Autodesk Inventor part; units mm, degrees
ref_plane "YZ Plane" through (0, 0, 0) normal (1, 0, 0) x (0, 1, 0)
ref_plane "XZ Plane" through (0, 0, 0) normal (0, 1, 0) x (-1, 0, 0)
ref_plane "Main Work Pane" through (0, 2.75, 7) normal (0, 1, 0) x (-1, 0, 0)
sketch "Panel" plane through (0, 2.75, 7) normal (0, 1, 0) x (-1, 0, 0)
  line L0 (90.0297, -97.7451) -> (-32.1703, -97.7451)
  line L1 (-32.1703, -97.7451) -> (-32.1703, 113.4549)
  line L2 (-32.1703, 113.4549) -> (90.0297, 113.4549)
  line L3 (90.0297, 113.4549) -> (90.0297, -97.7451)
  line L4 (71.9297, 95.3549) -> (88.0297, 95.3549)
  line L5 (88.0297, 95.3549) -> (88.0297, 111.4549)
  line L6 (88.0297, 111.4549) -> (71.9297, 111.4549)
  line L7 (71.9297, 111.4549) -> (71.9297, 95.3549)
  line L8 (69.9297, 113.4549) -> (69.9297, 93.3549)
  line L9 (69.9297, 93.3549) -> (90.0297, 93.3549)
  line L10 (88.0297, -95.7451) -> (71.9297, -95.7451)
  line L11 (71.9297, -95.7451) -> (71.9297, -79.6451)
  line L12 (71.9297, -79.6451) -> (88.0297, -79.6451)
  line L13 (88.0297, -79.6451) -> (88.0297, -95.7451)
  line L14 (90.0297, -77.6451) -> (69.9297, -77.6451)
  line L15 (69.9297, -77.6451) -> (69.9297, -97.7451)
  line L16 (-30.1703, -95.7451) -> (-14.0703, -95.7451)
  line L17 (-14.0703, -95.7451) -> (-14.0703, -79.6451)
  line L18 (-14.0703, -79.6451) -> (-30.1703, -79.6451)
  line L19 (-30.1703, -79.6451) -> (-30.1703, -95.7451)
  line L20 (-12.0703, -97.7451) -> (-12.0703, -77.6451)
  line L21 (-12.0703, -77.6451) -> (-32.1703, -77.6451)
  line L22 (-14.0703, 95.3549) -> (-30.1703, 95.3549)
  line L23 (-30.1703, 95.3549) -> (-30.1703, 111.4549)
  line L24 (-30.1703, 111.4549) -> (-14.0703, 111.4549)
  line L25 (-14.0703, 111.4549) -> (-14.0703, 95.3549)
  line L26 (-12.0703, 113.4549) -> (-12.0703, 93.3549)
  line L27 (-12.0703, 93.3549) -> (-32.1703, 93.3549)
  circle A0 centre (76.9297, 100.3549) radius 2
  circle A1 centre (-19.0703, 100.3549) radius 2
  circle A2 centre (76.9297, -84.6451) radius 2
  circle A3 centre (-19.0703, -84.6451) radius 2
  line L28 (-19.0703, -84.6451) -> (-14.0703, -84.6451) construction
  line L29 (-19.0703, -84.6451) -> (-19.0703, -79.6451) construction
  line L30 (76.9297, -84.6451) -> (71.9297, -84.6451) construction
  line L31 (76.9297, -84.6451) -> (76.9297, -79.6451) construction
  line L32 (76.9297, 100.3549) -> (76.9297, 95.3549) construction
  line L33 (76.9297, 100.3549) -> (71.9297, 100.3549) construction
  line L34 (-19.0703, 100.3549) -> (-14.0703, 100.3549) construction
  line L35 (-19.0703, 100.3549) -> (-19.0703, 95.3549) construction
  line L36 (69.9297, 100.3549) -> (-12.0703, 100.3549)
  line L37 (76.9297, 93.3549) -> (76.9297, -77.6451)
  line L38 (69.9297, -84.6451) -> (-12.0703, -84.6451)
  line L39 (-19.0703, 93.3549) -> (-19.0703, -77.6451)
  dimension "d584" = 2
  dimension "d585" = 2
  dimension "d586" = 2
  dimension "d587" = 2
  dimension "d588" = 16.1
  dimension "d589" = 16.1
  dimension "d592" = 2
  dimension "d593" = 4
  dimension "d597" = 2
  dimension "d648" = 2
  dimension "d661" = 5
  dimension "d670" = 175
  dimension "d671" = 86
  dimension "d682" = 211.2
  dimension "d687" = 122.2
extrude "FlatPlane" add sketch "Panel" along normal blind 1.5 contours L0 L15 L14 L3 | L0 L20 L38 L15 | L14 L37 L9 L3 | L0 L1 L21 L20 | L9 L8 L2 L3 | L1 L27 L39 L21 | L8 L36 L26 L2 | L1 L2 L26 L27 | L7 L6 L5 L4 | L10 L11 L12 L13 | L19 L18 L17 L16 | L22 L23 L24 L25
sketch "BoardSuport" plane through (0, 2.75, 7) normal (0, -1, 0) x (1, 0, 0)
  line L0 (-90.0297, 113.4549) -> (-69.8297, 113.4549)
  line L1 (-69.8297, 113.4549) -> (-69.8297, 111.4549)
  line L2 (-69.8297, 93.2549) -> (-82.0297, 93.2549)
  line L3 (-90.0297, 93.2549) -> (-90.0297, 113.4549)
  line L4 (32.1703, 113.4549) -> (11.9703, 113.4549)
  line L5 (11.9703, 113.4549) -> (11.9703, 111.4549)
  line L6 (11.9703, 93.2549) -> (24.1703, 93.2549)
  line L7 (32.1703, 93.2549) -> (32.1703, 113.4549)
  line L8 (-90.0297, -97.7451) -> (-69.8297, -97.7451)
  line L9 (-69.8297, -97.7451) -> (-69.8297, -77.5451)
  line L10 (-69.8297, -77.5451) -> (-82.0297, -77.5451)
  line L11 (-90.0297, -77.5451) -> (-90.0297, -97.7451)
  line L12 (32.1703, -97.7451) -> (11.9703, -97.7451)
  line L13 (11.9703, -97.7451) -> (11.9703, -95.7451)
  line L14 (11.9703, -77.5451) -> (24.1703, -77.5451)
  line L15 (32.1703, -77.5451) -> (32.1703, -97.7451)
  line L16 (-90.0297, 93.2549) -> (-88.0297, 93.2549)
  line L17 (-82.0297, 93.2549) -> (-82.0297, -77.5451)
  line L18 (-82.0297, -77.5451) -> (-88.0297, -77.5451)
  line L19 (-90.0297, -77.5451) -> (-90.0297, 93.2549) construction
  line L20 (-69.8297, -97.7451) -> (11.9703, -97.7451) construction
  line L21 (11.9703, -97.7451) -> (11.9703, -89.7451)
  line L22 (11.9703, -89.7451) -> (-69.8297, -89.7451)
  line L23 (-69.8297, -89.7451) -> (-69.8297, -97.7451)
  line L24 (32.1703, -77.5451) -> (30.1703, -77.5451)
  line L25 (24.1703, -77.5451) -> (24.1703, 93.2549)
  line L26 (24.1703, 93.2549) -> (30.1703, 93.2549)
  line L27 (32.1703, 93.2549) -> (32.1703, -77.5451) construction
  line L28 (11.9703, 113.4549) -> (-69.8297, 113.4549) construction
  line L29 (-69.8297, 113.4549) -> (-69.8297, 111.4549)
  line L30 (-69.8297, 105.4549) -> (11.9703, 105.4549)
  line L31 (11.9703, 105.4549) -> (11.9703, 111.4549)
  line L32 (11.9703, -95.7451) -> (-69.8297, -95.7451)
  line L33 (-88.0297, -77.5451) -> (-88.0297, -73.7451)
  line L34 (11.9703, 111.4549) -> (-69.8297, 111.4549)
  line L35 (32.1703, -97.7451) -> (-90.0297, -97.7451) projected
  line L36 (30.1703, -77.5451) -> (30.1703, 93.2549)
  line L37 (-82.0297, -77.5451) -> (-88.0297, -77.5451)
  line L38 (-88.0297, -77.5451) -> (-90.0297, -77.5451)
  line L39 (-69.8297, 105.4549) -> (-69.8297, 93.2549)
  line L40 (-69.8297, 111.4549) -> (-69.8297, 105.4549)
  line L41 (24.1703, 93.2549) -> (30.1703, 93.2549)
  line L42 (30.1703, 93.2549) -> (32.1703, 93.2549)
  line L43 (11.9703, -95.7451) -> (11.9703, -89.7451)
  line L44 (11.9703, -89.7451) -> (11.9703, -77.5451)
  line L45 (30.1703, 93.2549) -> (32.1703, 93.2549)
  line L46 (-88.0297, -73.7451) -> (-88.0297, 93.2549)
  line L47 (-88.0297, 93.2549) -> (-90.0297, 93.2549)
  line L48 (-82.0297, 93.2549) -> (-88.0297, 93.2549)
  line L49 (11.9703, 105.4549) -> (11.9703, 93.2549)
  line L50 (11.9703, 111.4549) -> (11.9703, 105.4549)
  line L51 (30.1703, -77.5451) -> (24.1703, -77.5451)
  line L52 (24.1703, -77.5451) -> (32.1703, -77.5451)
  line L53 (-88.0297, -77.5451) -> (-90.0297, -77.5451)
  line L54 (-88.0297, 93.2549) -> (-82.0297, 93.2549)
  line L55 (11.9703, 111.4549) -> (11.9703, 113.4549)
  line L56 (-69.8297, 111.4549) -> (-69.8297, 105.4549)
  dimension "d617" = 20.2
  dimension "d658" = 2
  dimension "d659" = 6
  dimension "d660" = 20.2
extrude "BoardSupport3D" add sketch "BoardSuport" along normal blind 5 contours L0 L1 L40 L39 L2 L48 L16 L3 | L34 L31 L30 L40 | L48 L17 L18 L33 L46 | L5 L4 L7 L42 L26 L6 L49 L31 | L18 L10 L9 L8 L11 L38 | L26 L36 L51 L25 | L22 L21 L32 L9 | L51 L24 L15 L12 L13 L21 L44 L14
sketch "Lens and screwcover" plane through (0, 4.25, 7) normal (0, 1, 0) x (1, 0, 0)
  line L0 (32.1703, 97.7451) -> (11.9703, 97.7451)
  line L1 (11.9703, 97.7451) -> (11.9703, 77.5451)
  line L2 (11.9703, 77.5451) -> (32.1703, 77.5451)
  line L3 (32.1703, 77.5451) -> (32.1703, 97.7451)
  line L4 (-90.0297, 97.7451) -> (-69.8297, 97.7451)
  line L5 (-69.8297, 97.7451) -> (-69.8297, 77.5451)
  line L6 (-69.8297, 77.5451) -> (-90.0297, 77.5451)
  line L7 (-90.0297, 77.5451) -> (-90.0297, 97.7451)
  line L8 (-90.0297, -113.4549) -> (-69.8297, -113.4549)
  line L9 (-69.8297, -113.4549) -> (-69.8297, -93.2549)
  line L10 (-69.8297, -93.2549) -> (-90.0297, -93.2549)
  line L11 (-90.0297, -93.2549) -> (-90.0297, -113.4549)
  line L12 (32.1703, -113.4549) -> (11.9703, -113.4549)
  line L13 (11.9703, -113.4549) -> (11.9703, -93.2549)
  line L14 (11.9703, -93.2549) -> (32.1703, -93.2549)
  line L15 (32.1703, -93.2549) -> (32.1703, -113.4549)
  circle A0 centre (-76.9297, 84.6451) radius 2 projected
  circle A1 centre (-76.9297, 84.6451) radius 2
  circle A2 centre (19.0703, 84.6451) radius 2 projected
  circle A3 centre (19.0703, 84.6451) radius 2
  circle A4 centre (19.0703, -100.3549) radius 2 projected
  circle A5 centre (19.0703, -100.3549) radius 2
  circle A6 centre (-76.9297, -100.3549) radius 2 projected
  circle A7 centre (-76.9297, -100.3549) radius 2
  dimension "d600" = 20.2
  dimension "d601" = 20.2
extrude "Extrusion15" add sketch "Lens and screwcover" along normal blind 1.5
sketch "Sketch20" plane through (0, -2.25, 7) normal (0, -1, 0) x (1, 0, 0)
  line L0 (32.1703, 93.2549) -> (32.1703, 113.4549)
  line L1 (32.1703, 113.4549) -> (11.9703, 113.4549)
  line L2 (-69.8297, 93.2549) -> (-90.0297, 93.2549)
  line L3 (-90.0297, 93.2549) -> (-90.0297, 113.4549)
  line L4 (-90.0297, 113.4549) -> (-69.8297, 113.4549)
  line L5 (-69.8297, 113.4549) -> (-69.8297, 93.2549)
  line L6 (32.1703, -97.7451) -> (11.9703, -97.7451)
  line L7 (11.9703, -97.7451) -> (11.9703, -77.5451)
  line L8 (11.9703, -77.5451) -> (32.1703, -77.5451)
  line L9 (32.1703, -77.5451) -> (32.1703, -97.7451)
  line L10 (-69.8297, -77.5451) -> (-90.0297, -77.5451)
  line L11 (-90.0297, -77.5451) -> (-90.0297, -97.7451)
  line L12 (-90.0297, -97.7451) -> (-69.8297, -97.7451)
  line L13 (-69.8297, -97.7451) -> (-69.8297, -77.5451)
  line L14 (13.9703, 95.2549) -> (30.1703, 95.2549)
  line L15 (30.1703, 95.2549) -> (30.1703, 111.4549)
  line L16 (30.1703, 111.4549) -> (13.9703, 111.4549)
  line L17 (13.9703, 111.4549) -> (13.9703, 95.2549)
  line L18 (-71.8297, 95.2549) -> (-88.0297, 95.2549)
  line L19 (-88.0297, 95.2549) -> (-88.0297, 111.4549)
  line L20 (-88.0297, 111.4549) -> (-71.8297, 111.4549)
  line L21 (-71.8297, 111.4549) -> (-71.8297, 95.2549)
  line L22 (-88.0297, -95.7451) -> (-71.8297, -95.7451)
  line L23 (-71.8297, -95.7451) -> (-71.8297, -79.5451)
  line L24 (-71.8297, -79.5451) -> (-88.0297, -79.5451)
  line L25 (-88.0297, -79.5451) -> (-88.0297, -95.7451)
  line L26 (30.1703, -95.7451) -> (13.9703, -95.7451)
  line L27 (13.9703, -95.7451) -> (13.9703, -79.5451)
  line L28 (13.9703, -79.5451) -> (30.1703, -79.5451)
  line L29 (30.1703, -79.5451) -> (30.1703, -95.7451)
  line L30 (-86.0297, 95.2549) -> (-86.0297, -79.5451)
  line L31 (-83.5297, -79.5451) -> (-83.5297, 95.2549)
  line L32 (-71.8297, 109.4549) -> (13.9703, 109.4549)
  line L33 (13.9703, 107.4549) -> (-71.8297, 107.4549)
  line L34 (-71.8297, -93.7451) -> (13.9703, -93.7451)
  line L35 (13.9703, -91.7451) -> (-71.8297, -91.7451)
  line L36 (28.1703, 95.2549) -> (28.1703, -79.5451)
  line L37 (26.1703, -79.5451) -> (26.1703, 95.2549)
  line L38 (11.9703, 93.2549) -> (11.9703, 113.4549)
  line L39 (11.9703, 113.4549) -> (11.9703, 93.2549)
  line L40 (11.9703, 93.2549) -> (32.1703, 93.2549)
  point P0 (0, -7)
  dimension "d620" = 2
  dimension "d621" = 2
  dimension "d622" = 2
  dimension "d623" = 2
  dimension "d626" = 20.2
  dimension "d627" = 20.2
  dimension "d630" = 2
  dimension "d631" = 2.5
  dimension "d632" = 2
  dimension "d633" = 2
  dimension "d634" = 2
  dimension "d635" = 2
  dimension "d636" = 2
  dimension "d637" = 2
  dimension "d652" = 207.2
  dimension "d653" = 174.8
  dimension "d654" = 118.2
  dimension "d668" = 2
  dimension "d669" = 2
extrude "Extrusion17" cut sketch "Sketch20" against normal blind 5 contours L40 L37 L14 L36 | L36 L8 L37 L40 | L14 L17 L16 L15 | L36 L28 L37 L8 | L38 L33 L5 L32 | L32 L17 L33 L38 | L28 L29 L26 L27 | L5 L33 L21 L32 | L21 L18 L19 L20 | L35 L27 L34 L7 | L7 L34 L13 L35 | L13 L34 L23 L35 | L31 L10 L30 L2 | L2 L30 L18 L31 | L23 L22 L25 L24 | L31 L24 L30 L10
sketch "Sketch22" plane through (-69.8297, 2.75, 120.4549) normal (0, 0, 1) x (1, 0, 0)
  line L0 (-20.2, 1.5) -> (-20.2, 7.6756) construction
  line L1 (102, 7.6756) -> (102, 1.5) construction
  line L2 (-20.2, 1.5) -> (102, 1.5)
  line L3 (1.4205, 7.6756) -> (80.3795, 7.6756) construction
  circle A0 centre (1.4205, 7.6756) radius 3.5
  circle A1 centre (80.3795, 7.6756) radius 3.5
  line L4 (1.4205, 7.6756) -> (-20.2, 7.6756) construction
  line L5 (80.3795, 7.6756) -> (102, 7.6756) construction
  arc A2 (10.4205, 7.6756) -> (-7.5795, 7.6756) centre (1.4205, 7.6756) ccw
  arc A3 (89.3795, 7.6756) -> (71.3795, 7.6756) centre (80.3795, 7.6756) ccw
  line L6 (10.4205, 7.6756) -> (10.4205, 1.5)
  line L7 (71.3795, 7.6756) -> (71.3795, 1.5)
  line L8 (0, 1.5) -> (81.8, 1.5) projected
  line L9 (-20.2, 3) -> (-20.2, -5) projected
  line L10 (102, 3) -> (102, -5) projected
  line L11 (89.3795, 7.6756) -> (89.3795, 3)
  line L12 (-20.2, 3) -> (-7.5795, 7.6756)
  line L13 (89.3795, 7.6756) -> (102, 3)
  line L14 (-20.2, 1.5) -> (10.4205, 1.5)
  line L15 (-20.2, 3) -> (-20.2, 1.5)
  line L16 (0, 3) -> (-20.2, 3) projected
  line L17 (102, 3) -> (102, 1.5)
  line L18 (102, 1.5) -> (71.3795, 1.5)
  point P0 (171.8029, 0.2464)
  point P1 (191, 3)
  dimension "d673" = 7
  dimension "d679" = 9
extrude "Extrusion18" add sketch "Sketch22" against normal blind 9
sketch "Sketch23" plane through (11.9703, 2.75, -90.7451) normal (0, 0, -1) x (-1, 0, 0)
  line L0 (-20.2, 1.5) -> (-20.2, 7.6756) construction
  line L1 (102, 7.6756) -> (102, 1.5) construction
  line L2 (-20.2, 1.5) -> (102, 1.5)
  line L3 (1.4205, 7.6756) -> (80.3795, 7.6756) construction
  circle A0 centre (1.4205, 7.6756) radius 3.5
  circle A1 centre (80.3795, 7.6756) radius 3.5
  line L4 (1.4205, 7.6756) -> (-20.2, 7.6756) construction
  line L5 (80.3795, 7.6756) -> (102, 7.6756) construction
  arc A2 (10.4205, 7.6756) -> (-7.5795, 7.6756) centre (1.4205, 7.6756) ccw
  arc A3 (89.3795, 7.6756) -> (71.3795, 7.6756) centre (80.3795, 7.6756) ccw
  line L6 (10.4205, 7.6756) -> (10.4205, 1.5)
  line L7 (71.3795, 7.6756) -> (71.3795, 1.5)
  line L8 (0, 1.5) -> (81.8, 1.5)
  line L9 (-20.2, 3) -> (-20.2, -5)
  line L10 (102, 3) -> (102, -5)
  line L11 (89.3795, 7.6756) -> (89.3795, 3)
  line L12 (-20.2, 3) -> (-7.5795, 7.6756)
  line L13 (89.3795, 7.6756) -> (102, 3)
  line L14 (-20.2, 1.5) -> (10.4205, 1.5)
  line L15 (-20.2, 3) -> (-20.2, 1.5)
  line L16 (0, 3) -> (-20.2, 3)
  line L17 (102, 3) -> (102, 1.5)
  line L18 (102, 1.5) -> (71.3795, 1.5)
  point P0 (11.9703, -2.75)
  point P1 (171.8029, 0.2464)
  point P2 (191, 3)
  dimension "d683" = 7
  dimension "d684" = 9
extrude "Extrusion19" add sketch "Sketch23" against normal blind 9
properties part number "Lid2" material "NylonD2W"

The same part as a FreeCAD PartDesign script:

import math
import FreeCAD as App
import Part
import Sketcher
from FreeCAD import Vector
Q = App.Units.Quantity

doc = App.newDocument("Part")
body = doc.addObject("PartDesign::Body", "Body")

# Sketch on XZ plane
sketch1 = doc.addObject("Sketcher::SketchObject", "Sketch")
body.addObject(sketch1)
sketch1.AttachmentSupport = (doc.XZ_Plane, [""])
sketch1.MapMode = "FlatFace"
sketch1.AttachmentOffset = App.Placement(Vector(0, 0, -2.75), App.Rotation())
sketch1.addGeometry([
    Part.LineSegment(Vector(-90, -90.7, 0), Vector(-90, 120.5, 0)),  # 0
    Part.LineSegment(Vector(-90, 120.5, 0), Vector(32.2, 120.5, 0)),  # 1
    Part.LineSegment(Vector(32.2, 120.5, 0), Vector(32.2, -90.7, 0)),  # 2
    Part.LineSegment(Vector(32.2, -90.7, 0), Vector(-90, -90.7, 0)),  # 3
    Part.LineSegment(Vector(-69.9, -70.6, 0), Vector(-69.9, -77.6, 0)),  # 4
    Part.LineSegment(Vector(-69.9, -77.6, 0), Vector(12.1, -77.6, 0)),  # 5
    Part.LineSegment(Vector(12.1, -77.6, 0), Vector(12.1, -70.6, 0)),  # 6
    Part.LineSegment(Vector(12.1, -70.6, 0), Vector(19.1, -70.6, 0)),  # 7
    Part.LineSegment(Vector(19.1, -70.6, 0), Vector(19.1, 100.4, 0)),  # 8
    Part.LineSegment(Vector(19.1, 100.4, 0), Vector(12.1, 100.4, 0)),  # 9
    Part.LineSegment(Vector(12.1, 100.4, 0), Vector(12.1, 107.4, 0)),  # 10
    Part.LineSegment(Vector(12.1, 107.4, 0), Vector(-69.9, 107.4, 0)),  # 11
    Part.LineSegment(Vector(-69.9, 107.4, 0), Vector(-69.9, 100.4, 0)),  # 12
    Part.LineSegment(Vector(-69.9, 100.4, 0), Vector(-76.9, 100.4, 0)),  # 13
    Part.LineSegment(Vector(-76.9, 100.4, 0), Vector(-76.9, -70.6, 0)),  # 14
    Part.LineSegment(Vector(-76.9, -70.6, 0), Vector(-69.9, -70.6, 0)),  # 15
    Part.Circle(Vector(-76.9, -77.6, 0), Vector(0, 0, 1), 2),  # 16
    Part.Circle(Vector(19.1, -77.6, 0), Vector(0, 0, 1), 2),  # 17
    Part.Circle(Vector(-76.9, 107.4, 0), Vector(0, 0, 1), 2),  # 18
    Part.Circle(Vector(19.1, 107.4, 0), Vector(0, 0, 1), 2),  # 19
], False)
sketch1.addConstraint([
    Sketcher.Constraint("Coincident", 0, 2, 1, 1),
    Sketcher.Constraint("Coincident", 1, 2, 2, 1),
    Sketcher.Constraint("Coincident", 2, 2, 3, 1),
    Sketcher.Constraint("Coincident", 3, 2, 0, 1),
    Sketcher.Constraint("Coincident", 4, 2, 5, 1),
    Sketcher.Constraint("Coincident", 5, 2, 6, 1),
    Sketcher.Constraint("Coincident", 6, 2, 7, 1),
    Sketcher.Constraint("Coincident", 7, 2, 8, 1),
    Sketcher.Constraint("Coincident", 8, 2, 9, 1),
    Sketcher.Constraint("Coincident", 9, 2, 10, 1),
    Sketcher.Constraint("Coincident", 10, 2, 11, 1),
    Sketcher.Constraint("Coincident", 11, 2, 12, 1),
    Sketcher.Constraint("Coincident", 12, 2, 13, 1),
    Sketcher.Constraint("Coincident", 13, 2, 14, 1),
    Sketcher.Constraint("Coincident", 14, 2, 15, 1),
    Sketcher.Constraint("Coincident", 15, 2, 4, 1),
    Sketcher.Constraint("Vertical", 0),
    Sketcher.Constraint("Horizontal", 1),
    Sketcher.Constraint("Vertical", 2),
    Sketcher.Constraint("Horizontal", 3),
    Sketcher.Constraint("Vertical", 4),
    Sketcher.Constraint("Horizontal", 5),
    Sketcher.Constraint("Vertical", 6),
    Sketcher.Constraint("Horizontal", 7),
    Sketcher.Constraint("Vertical", 8),
    Sketcher.Constraint("Horizontal", 9),
    Sketcher.Constraint("Vertical", 10),
    Sketcher.Constraint("Horizontal", 11),
    Sketcher.Constraint("Vertical", 12),
    Sketcher.Constraint("Horizontal", 13),
    Sketcher.Constraint("Vertical", 14),
    Sketcher.Constraint("Horizontal", 15),
    Sketcher.Constraint("Equal", 16, 17),
    Sketcher.Constraint("Equal", 17, 18),
    Sketcher.Constraint("Equal", 18, 19),
    Sketcher.Constraint("Horizontal", 16, 3, 17, 3),
    Sketcher.Constraint("Horizontal", 18, 3, 19, 3),
    Sketcher.Constraint("Horizontal", 17, 3, 4, 2),
    Sketcher.Constraint("Horizontal", 19, 3, 10, 2),
    Sketcher.Constraint("Horizontal", 9, 2, 12, 2),
    Sketcher.Constraint("Horizontal", 7, 2, 14, 2),
    Sketcher.Constraint("Vertical", 16, 3, 18, 3),
    Sketcher.Constraint("Vertical", 17, 3, 19, 3),
    Sketcher.Constraint("Vertical", 19, 3, 7, 2),
    Sketcher.Constraint("Vertical", 6, 2, 9, 2),
    Sketcher.Constraint("Vertical", 4, 2, 11, 2),
    Sketcher.Constraint("Vertical", 18, 3, 13, 2),
    Sketcher.Constraint("Equal", 9, 13),
    Sketcher.Constraint("Equal", 15, 4),
    Sketcher.Constraint("Equal", 6, 10),
    Sketcher.Constraint("Diameter", 16, Q("4 mm")),
    Sketcher.Constraint("DistanceX", 1, 1, 1, 2, Q("122.2 mm")),
    Sketcher.Constraint("DistanceY", 0, 1, 0, 2, Q("211.2 mm")),
    Sketcher.Constraint("DistanceX", 5, 1, 5, 2, Q("82 mm")),
    Sketcher.Constraint("DistanceX", 7, 1, 7, 2, Q("7 mm")),
    Sketcher.Constraint("DistanceY", 8, 1, 8, 2, Q("171 mm")),
    Sketcher.Constraint("DistanceX", 0, 2, 18, 3, Q("13.1 mm")),
    Sketcher.Constraint("DistanceY", 18, 3, 0, 2, Q("13.1 mm")),
    Sketcher.Constraint("DistanceY", 16, 3, -1, 1, Q("77.645 mm")),
    Sketcher.Constraint("DistanceX", 16, 3, -1, 1, Q("76.9297 mm")),
])
pad1 = doc.addObject("PartDesign::Pad", "Pad")
body.addObject(pad1)
pad1.Profile = sketch1
pad1.Length = 1.5
pad1.Reversed = True

# Sketch on XZ plane
sketch2 = doc.addObject("Sketcher::SketchObject", "Sketch001")
body.addObject(sketch2)
sketch2.AttachmentSupport = (doc.XZ_Plane, [""])
sketch2.MapMode = "FlatFace"
sketch2.AttachmentOffset = App.Placement(Vector(0, 0, -2.75), App.Rotation())
sketch2.addGeometry([
    Part.LineSegment(Vector(-69.8, 120.5, 0), Vector(-90, 120.5, 0)),  # 0
    Part.LineSegment(Vector(-90, 120.5, 0), Vector(-90, 100.3, 0)),  # 1
    Part.LineSegment(Vector(-90, 100.3, 0), Vector(-88, 100.3, 0)),  # 2
    Part.LineSegment(Vector(-88, 100.3, 0), Vector(-88, -70.5, 0)),  # 3
    Part.LineSegment(Vector(-88, -70.5, 0), Vector(-90, -70.5, 0)),  # 4
    Part.LineSegment(Vector(-90, -70.5, 0), Vector(-90, -90.7, 0)),  # 5
    Part.LineSegment(Vector(-90, -90.7, 0), Vector(-69.8, -90.7, 0)),  # 6
    Part.LineSegment(Vector(-69.8, -90.7, 0), Vector(-69.8, -88.7, 0)),  # 7
    Part.LineSegment(Vector(-69.8, -88.7, 0), Vector(12, -88.7, 0)),  # 8
    Part.LineSegment(Vector(12, -88.7, 0), Vector(12, -90.7, 0)),  # 9
    Part.LineSegment(Vector(12, -90.7, 0), Vector(32.2, -90.7, 0)),  # 10
    Part.LineSegment(Vector(32.2, -90.7, 0), Vector(32.2, -70.5, 0)),  # 11
    Part.LineSegment(Vector(32.2, -70.5, 0), Vector(30.2, -70.5, 0)),  # 12
    Part.LineSegment(Vector(30.2, -70.5, 0), Vector(30.2, 100.3, 0)),  # 13
    Part.LineSegment(Vector(30.2, 100.3, 0), Vector(32.2, 100.3, 0)),  # 14
    Part.LineSegment(Vector(32.2, 100.3, 0), Vector(32.2, 120.5, 0)),  # 15
    Part.LineSegment(Vector(32.2, 120.5, 0), Vector(12, 120.5, 0)),  # 16
    Part.LineSegment(Vector(12, 120.5, 0), Vector(12, 118.5, 0)),  # 17
    Part.LineSegment(Vector(12, 118.5, 0), Vector(-69.8, 118.5, 0)),  # 18
    Part.LineSegment(Vector(-69.8, 118.5, 0), Vector(-69.8, 120.5, 0)),  # 19
    Part.LineSegment(Vector(-69.8, 100.3, 0), Vector(-69.8, 112.5, 0)),  # 20
    Part.LineSegment(Vector(-69.8, 112.5, 0), Vector(12, 112.5, 0)),  # 21
    Part.LineSegment(Vector(12, 112.5, 0), Vector(12, 100.3, 0)),  # 22
    Part.LineSegment(Vector(12, 100.3, 0), Vector(24.2, 100.3, 0)),  # 23
    Part.LineSegment(Vector(24.2, 100.3, 0), Vector(24.2, -70.5, 0)),  # 24
    Part.LineSegment(Vector(24.2, -70.5, 0), Vector(12, -70.5, 0)),  # 25
    Part.LineSegment(Vector(12, -70.5, 0), Vector(12, -82.7, 0)),  # 26
    Part.LineSegment(Vector(12, -82.7, 0), Vector(-69.8, -82.7, 0)),  # 27
    Part.LineSegment(Vector(-69.8, -82.7, 0), Vector(-69.8, -70.5, 0)),  # 28
    Part.LineSegment(Vector(-69.8, -70.5, 0), Vector(-82, -70.5, 0)),  # 29
    Part.LineSegment(Vector(-82, -70.5, 0), Vector(-82, 100.3, 0)),  # 30
    Part.LineSegment(Vector(-82, 100.3, 0), Vector(-69.8, 100.3, 0)),  # 31
], False)
sketch2.addConstraint([
    Sketcher.Constraint("Coincident", 0, 2, 1, 1),
    Sketcher.Constraint("Coincident", 1, 2, 2, 1),
    Sketcher.Constraint("Coincident", 2, 2, 3, 1),
    Sketcher.Constraint("Coincident", 3, 2, 4, 1),
    Sketcher.Constraint("Coincident", 4, 2, 5, 1),
    Sketcher.Constraint("Coincident", 5, 2, 6, 1),
    Sketcher.Constraint("Coincident", 6, 2, 7, 1),
    Sketcher.Constraint("Coincident", 7, 2, 8, 1),
    Sketcher.Constraint("Coincident", 8, 2, 9, 1),
    Sketcher.Constraint("Coincident", 9, 2, 10, 1),
    Sketcher.Constraint("Coincident", 10, 2, 11, 1),
    Sketcher.Constraint("Coincident", 11, 2, 12, 1),
    Sketcher.Constraint("Coincident", 12, 2, 13, 1),
    Sketcher.Constraint("Coincident", 13, 2, 14, 1),
    Sketcher.Constraint("Coincident", 14, 2, 15, 1),
    Sketcher.Constraint("Coincident", 15, 2, 16, 1),
    Sketcher.Constraint("Coincident", 16, 2, 17, 1),
    Sketcher.Constraint("Coincident", 17, 2, 18, 1),
    Sketcher.Constraint("Coincident", 18, 2, 19, 1),
    Sketcher.Constraint("Coincident", 19, 2, 0, 1),
    Sketcher.Constraint("Coincident", 20, 2, 21, 1),
    Sketcher.Constraint("Coincident", 21, 2, 22, 1),
    Sketcher.Constraint("Coincident", 22, 2, 23, 1),
    Sketcher.Constraint("Coincident", 23, 2, 24, 1),
    Sketcher.Constraint("Coincident", 24, 2, 25, 1),
    Sketcher.Constraint("Coincident", 25, 2, 26, 1),
    Sketcher.Constraint("Coincident", 26, 2, 27, 1),
    Sketcher.Constraint("Coincident", 27, 2, 28, 1),
    Sketcher.Constraint("Coincident", 28, 2, 29, 1),
    Sketcher.Constraint("Coincident", 29, 2, 30, 1),
    Sketcher.Constraint("Coincident", 30, 2, 31, 1),
    Sketcher.Constraint("Coincident", 31, 2, 20, 1),
    Sketcher.Constraint("Horizontal", 0),
    Sketcher.Constraint("Vertical", 1),
    Sketcher.Constraint("Horizontal", 2),
    Sketcher.Constraint("Vertical", 3),
    Sketcher.Constraint("Horizontal", 4),
    Sketcher.Constraint("Vertical", 5),
    Sketcher.Constraint("Horizontal", 6),
    Sketcher.Constraint("Vertical", 7),
    Sketcher.Constraint("Horizontal", 8),
    Sketcher.Constraint("Vertical", 9),
    Sketcher.Constraint("Horizontal", 10),
    Sketcher.Constraint("Vertical", 11),
    Sketcher.Constraint("Horizontal", 12),
    Sketcher.Constraint("Vertical", 13),
    Sketcher.Constraint("Horizontal", 14),
    Sketcher.Constraint("Vertical", 15),
    Sketcher.Constraint("Horizontal", 16),
    Sketcher.Constraint("Vertical", 17),
    Sketcher.Constraint("Horizontal", 18),
    Sketcher.Constraint("Vertical", 19),
    Sketcher.Constraint("Vertical", 20),
    Sketcher.Constraint("Horizontal", 21),
    Sketcher.Constraint("Vertical", 22),
    Sketcher.Constraint("Horizontal", 23),
    Sketcher.Constraint("Vertical", 24),
    Sketcher.Constraint("Horizontal", 25),
    Sketcher.Constraint("Vertical", 26),
    Sketcher.Constraint("Horizontal", 27),
    Sketcher.Constraint("Vertical", 28),
    Sketcher.Constraint("Horizontal", 29),
    Sketcher.Constraint("Vertical", 30),
    Sketcher.Constraint("Horizontal", 31),
    Sketcher.Constraint("Horizontal", 6, 2, 9, 2),
    Sketcher.Constraint("Horizontal", 4, 2, 11, 2),
    Sketcher.Constraint("Horizontal", 2, 2, 13, 2),
    Sketcher.Constraint("Horizontal", 0, 2, 15, 2),
    Sketcher.Constraint("Horizontal", 14, 2, 22, 2),
    Sketcher.Constraint("Horizontal", 12, 2, 24, 2),
    Sketcher.Constraint("Horizontal", 25, 2, 28, 2),
    Sketcher.Constraint("Horizontal", 23, 2, 30, 2),
    Sketcher.Constraint("Vertical", 1, 2, 4, 2),
    Sketcher.Constraint("Vertical", 11, 2, 14, 2),
    Sketcher.Constraint("Vertical", 9, 2, 16, 2),
    Sketcher.Constraint("Vertical", 7, 2, 18, 2),
    Sketcher.Constraint("Vertical", 19, 2, 20, 2),
    Sketcher.Constraint("Vertical", 17, 2, 21, 2),
    Sketcher.Constraint("Vertical", 22, 2, 25, 2),
    Sketcher.Constraint("Vertical", 20, 2, 27, 2),
    Sketcher.Constraint("Equal", 6, 10),
    Sketcher.Constraint("Equal", 4, 12),
    Sketcher.Constraint("Equal", 25, 29),
    Sketcher.Constraint("Equal", 16, 1),
    Sketcher.Constraint("Equal", 1, 5),
    Sketcher.Constraint("Equal", 14, 7),
    Sketcher.Constraint("Equal", 9, 17),
    Sketcher.Constraint("Equal", 31, 20),
    Sketcher.Constraint("Equal", 22, 26),
    Sketcher.Constraint("DistanceX", 2, 1, 2, 2, Q("2 mm")),
    Sketcher.Constraint("DistanceX", 0, 2, 0, 1, Q("20.2 mm")),
    Sketcher.Constraint("DistanceY", 20, 2, 18, 2, Q("6 mm")),
    Sketcher.Constraint("DistanceX", 8, 1, 8, 2, Q("81.8 mm")),
    Sketcher.Constraint("DistanceY", 3, 2, 3, 1, Q("170.8 mm")),
    Sketcher.Constraint("DistanceY", -1, 1, 0, 2, Q("120.455 mm")),
    Sketcher.Constraint("DistanceX", 0, 2, -1, 1, Q("90.0297 mm")),
])
pad2 = doc.addObject("PartDesign::Pad", "Pad001")
body.addObject(pad2)
pad2.Profile = sketch2
pad2.Length = 5

# Sketch on XZ plane
sketch3 = doc.addObject("Sketcher::SketchObject", "Sketch002")
body.addObject(sketch3)
sketch3.AttachmentSupport = (doc.XZ_Plane, [""])
sketch3.MapMode = "FlatFace"
sketch3.AttachmentOffset = App.Placement(Vector(0, 0, -4.25), App.Rotation())
sketch3.addGeometry([
    Part.LineSegment(Vector(32.2, -70.5, 0), Vector(32.2, -90.7, 0)),  # 0
    Part.LineSegment(Vector(32.2, -90.7, 0), Vector(12, -90.7, 0)),  # 1
    Part.LineSegment(Vector(12, -90.7, 0), Vector(12, -70.5, 0)),  # 2
    Part.LineSegment(Vector(12, -70.5, 0), Vector(32.2, -70.5, 0)),  # 3
    Part.Circle(Vector(19.1, -77.6, 0), Vector(0, 0, 1), 2),  # 4
    Part.LineSegment(Vector(-69.8, -90.7, 0), Vector(-90, -90.7, 0)),  # 5
    Part.LineSegment(Vector(-90, -90.7, 0), Vector(-90, -70.5, 0)),  # 6
    Part.LineSegment(Vector(-90, -70.5, 0), Vector(-69.8, -70.5, 0)),  # 7
    Part.LineSegment(Vector(-69.8, -70.5, 0), Vector(-69.8, -90.7, 0)),  # 8
    Part.Circle(Vector(-76.9, -77.6, 0), Vector(0, 0, 1), 2),  # 9
    Part.LineSegment(Vector(-90, 100.3, 0), Vector(-90, 120.5, 0)),  # 10
    Part.LineSegment(Vector(-90, 120.5, 0), Vector(-69.8, 120.5, 0)),  # 11
    Part.LineSegment(Vector(-69.8, 120.5, 0), Vector(-69.8, 100.3, 0)),  # 12
    Part.LineSegment(Vector(-69.8, 100.3, 0), Vector(-90, 100.3, 0)),  # 13
    Part.Circle(Vector(-76.9, 107.4, 0), Vector(0, 0, 1), 2),  # 14
    Part.LineSegment(Vector(12, 120.5, 0), Vector(32.2, 120.5, 0)),  # 15
    Part.LineSegment(Vector(32.2, 120.5, 0), Vector(32.2, 100.3, 0)),  # 16
    Part.LineSegment(Vector(32.2, 100.3, 0), Vector(12, 100.3, 0)),  # 17
    Part.LineSegment(Vector(12, 100.3, 0), Vector(12, 120.5, 0)),  # 18
    Part.Circle(Vector(19.1, 107.4, 0), Vector(0, 0, 1), 2),  # 19
], False)
sketch3.addConstraint([
    Sketcher.Constraint("Coincident", 0, 2, 1, 1),
    Sketcher.Constraint("Coincident", 1, 2, 2, 1),
    Sketcher.Constraint("Coincident", 2, 2, 3, 1),
    Sketcher.Constraint("Coincident", 3, 2, 0, 1),
    Sketcher.Constraint("Coincident", 5, 2, 6, 1),
    Sketcher.Constraint("Coincident", 6, 2, 7, 1),
    Sketcher.Constraint("Coincident", 7, 2, 8, 1),
    Sketcher.Constraint("Coincident", 8, 2, 5, 1),
    Sketcher.Constraint("Coincident", 10, 2, 11, 1),
    Sketcher.Constraint("Coincident", 11, 2, 12, 1),
    Sketcher.Constraint("Coincident", 12, 2, 13, 1),
    Sketcher.Constraint("Coincident", 13, 2, 10, 1),
    Sketcher.Constraint("Coincident", 15, 2, 16, 1),
    Sketcher.Constraint("Coincident", 16, 2, 17, 1),
    Sketcher.Constraint("Coincident", 17, 2, 18, 1),
    Sketcher.Constraint("Coincident", 18, 2, 15, 1),
    Sketcher.Constraint("Vertical", 0),
    Sketcher.Constraint("Horizontal", 1),
    Sketcher.Constraint("Vertical", 2),
    Sketcher.Constraint("Horizontal", 3),
    Sketcher.Constraint("Horizontal", 5),
    Sketcher.Constraint("Vertical", 6),
    Sketcher.Constraint("Horizontal", 7),
    Sketcher.Constraint("Vertical", 8),
    Sketcher.Constraint("Vertical", 10),
    Sketcher.Constraint("Horizontal", 11),
    Sketcher.Constraint("Vertical", 12),
    Sketcher.Constraint("Horizontal", 13),
    Sketcher.Constraint("Horizontal", 15),
    Sketcher.Constraint("Vertical", 16),
    Sketcher.Constraint("Horizontal", 17),
    Sketcher.Constraint("Vertical", 18),
    Sketcher.Constraint("Equal", 4, 9),
    Sketcher.Constraint("Equal", 9, 14),
    Sketcher.Constraint("Equal", 14, 19),
    Sketcher.Constraint("Horizontal", 4, 3, 9, 3),
    Sketcher.Constraint("Horizontal", 14, 3, 19, 3),
    Sketcher.Constraint("Horizontal", 1, 2, 5, 2),
    Sketcher.Constraint("Horizontal", 3, 2, 6, 2),
    Sketcher.Constraint("Horizontal", 11, 2, 15, 2),
    Sketcher.Constraint("Horizontal", 13, 2, 16, 2),
    Sketcher.Constraint("Vertical", 9, 3, 14, 3),
    Sketcher.Constraint("Vertical", 4, 3, 19, 3),
    Sketcher.Constraint("Vertical", 6, 2, 10, 2),
    Sketcher.Constraint("Vertical", 8, 2, 11, 2),
    Sketcher.Constraint("Vertical", 3, 2, 15, 2),
    Sketcher.Constraint("Vertical", 2, 2, 17, 2),
    Sketcher.Constraint("Equal", 3, 5),
    Sketcher.Constraint("Equal", 17, 0),
    Sketcher.Constraint("Equal", 8, 10),
    Sketcher.Constraint("Diameter", 4, Q("4 mm")),
    Sketcher.Constraint("DistanceX", 1, 2, 1, 1, Q("20.2 mm")),
    Sketcher.Constraint("DistanceX", 9, 3, 4, 3, Q("96 mm")),
    Sketcher.Constraint("DistanceY", 9, 3, 14, 3, Q("185 mm")),
    Sketcher.Constraint("DistanceX", 5, 2, 1, 2, Q("102 mm")),
    Sketcher.Constraint("DistanceY", 6, 2, 10, 2, Q("191 mm")),
    Sketcher.Constraint("DistanceX", 4, 3, 0, 2, Q("13.1 mm")),
    Sketcher.Constraint("DistanceY", 0, 2, 4, 3, Q("13.1 mm")),
    Sketcher.Constraint("DistanceY", 4, 3, -1, 1, Q("77.645 mm")),
    Sketcher.Constraint("DistanceX", -1, 1, 4, 3, Q("19.0703 mm")),
])
pad3 = doc.addObject("PartDesign::Pad", "Pad002")
body.addObject(pad3)
pad3.Profile = sketch3
pad3.Length = 1.5
pad3.Reversed = True

# Sketch on XZ plane
sketch4 = doc.addObject("Sketcher::SketchObject", "Sketch003")
body.addObject(sketch4)
sketch4.AttachmentSupport = (doc.XZ_Plane, [""])
sketch4.MapMode = "FlatFace"
sketch4.AttachmentOffset = App.Placement(Vector(0, 0, 2.25), App.Rotation())
sketch4.addGeometry([
    Part.LineSegment(Vector(28.2, 102.3, 0), Vector(30.2, 102.3, 0)),  # 0
    Part.LineSegment(Vector(30.2, 102.3, 0), Vector(30.2, 118.5, 0)),  # 1
    Part.LineSegment(Vector(30.2, 118.5, 0), Vector(14, 118.5, 0)),  # 2
    Part.LineSegment(Vector(14, 118.5, 0), Vector(14, 116.5, 0)),  # 3
    Part.LineSegment(Vector(14, 116.5, 0), Vector(-71.8, 116.5, 0)),  # 4
    Part.LineSegment(Vector(-71.8, 116.5, 0), Vector(-71.8, 118.5, 0)),  # 5
    Part.LineSegment(Vector(-71.8, 118.5, 0), Vector(-88, 118.5, 0)),  # 6
    Part.LineSegment(Vector(-88, 118.5, 0), Vector(-88, 102.3, 0)),  # 7
    Part.LineSegment(Vector(-88, 102.3, 0), Vector(-86, 102.3, 0)),  # 8
    Part.LineSegment(Vector(-86, 102.3, 0), Vector(-86, -72.5, 0)),  # 9
    Part.LineSegment(Vector(-86, -72.5, 0), Vector(-88, -72.5, 0)),  # 10
    Part.LineSegment(Vector(-88, -72.5, 0), Vector(-88, -88.7, 0)),  # 11
    Part.LineSegment(Vector(-88, -88.7, 0), Vector(-71.8, -88.7, 0)),  # 12
    Part.LineSegment(Vector(-71.8, -88.7, 0), Vector(-71.8, -86.7, 0)),  # 13
    Part.LineSegment(Vector(-71.8, -86.7, 0), Vector(14, -86.7, 0)),  # 14
    Part.LineSegment(Vector(14, -86.7, 0), Vector(14, -88.7, 0)),  # 15
    Part.LineSegment(Vector(14, -88.7, 0), Vector(30.2, -88.7, 0)),  # 16
    Part.LineSegment(Vector(30.2, -88.7, 0), Vector(30.2, -72.5, 0)),  # 17
    Part.LineSegment(Vector(30.2, -72.5, 0), Vector(28.2, -72.5, 0)),  # 18
    Part.LineSegment(Vector(28.2, -72.5, 0), Vector(28.2, 102.3, 0)),  # 19
    Part.LineSegment(Vector(26.2, 102.3, 0), Vector(26.2, -72.5, 0)),  # 20
    Part.LineSegment(Vector(26.2, -72.5, 0), Vector(14, -72.5, 0)),  # 21
    Part.LineSegment(Vector(14, -72.5, 0), Vector(14, -84.7, 0)),  # 22
    Part.LineSegment(Vector(14, -84.7, 0), Vector(-71.8, -84.7, 0)),  # 23
    Part.LineSegment(Vector(-71.8, -84.7, 0), Vector(-71.8, -72.5, 0)),  # 24
    Part.LineSegment(Vector(-71.8, -72.5, 0), Vector(-83.5, -72.5, 0)),  # 25
    Part.LineSegment(Vector(-83.5, -72.5, 0), Vector(-83.5, 102.3, 0)),  # 26
    Part.LineSegment(Vector(-83.5, 102.3, 0), Vector(-71.8, 102.3, 0)),  # 27
    Part.LineSegment(Vector(-71.8, 102.3, 0), Vector(-71.8, 114.5, 0)),  # 28
    Part.LineSegment(Vector(-71.8, 114.5, 0), Vector(14, 114.5, 0)),  # 29
    Part.LineSegment(Vector(14, 114.5, 0), Vector(14, 102.3, 0)),  # 30
    Part.LineSegment(Vector(14, 102.3, 0), Vector(26.2, 102.3, 0)),  # 31
], False)
sketch4.addConstraint([
    Sketcher.Constraint("Coincident", 0, 2, 1, 1),
    Sketcher.Constraint("Coincident", 1, 2, 2, 1),
    Sketcher.Constraint("Coincident", 2, 2, 3, 1),
    Sketcher.Constraint("Coincident", 3, 2, 4, 1),
    Sketcher.Constraint("Coincident", 4, 2, 5, 1),
    Sketcher.Constraint("Coincident", 5, 2, 6, 1),
    Sketcher.Constraint("Coincident", 6, 2, 7, 1),
    Sketcher.Constraint("Coincident", 7, 2, 8, 1),
    Sketcher.Constraint("Coincident", 8, 2, 9, 1),
    Sketcher.Constraint("Coincident", 9, 2, 10, 1),
    Sketcher.Constraint("Coincident", 10, 2, 11, 1),
    Sketcher.Constraint("Coincident", 11, 2, 12, 1),
    Sketcher.Constraint("Coincident", 12, 2, 13, 1),
    Sketcher.Constraint("Coincident", 13, 2, 14, 1),
    Sketcher.Constraint("Coincident", 14, 2, 15, 1),
    Sketcher.Constraint("Coincident", 15, 2, 16, 1),
    Sketcher.Constraint("Coincident", 16, 2, 17, 1),
    Sketcher.Constraint("Coincident", 17, 2, 18, 1),
    Sketcher.Constraint("Coincident", 18, 2, 19, 1),
    Sketcher.Constraint("Coincident", 19, 2, 0, 1),
    Sketcher.Constraint("Coincident", 20, 2, 21, 1),
    Sketcher.Constraint("Coincident", 21, 2, 22, 1),
    Sketcher.Constraint("Coincident", 22, 2, 23, 1),
    Sketcher.Constraint("Coincident", 23, 2, 24, 1),
    Sketcher.Constraint("Coincident", 24, 2, 25, 1),
    Sketcher.Constraint("Coincident", 25, 2, 26, 1),
    Sketcher.Constraint("Coincident", 26, 2, 27, 1),
    Sketcher.Constraint("Coincident", 27, 2, 28, 1),
    Sketcher.Constraint("Coincident", 28, 2, 29, 1),
    Sketcher.Constraint("Coincident", 29, 2, 30, 1),
    Sketcher.Constraint("Coincident", 30, 2, 31, 1),
    Sketcher.Constraint("Coincident", 31, 2, 20, 1),
    Sketcher.Constraint("Horizontal", 0),
    Sketcher.Constraint("Vertical", 1),
    Sketcher.Constraint("Horizontal", 2),
    Sketcher.Constraint("Vertical", 3),
    Sketcher.Constraint("Horizontal", 4),
    Sketcher.Constraint("Vertical", 5),
    Sketcher.Constraint("Horizontal", 6),
    Sketcher.Constraint("Vertical", 7),
    Sketcher.Constraint("Horizontal", 8),
    Sketcher.Constraint("Vertical", 9),
    Sketcher.Constraint("Horizontal", 10),
    Sketcher.Constraint("Vertical", 11),
    Sketcher.Constraint("Horizontal", 12),
    Sketcher.Constraint("Vertical", 13),
    Sketcher.Constraint("Horizontal", 14),
    Sketcher.Constraint("Vertical", 15),
    Sketcher.Constraint("Horizontal", 16),
    Sketcher.Constraint("Vertical", 17),
    Sketcher.Constraint("Horizontal", 18),
    Sketcher.Constraint("Vertical", 19),
    Sketcher.Constraint("Vertical", 20),
    Sketcher.Constraint("Horizontal", 21),
    Sketcher.Constraint("Vertical", 22),
    Sketcher.Constraint("Horizontal", 23),
    Sketcher.Constraint("Vertical", 24),
    Sketcher.Constraint("Horizontal", 25),
    Sketcher.Constraint("Vertical", 26),
    Sketcher.Constraint("Horizontal", 27),
    Sketcher.Constraint("Vertical", 28),
    Sketcher.Constraint("Horizontal", 29),
    Sketcher.Constraint("Vertical", 30),
    Sketcher.Constraint("Horizontal", 31),
    Sketcher.Constraint("Horizontal", 2, 2, 5, 2),
    Sketcher.Constraint("Horizontal", 0, 2, 7, 2),
    Sketcher.Constraint("Horizontal", 12, 2, 15, 2),
    Sketcher.Constraint("Horizontal", 10, 2, 17, 2),
    Sketcher.Constraint("Horizontal", 18, 2, 20, 2),
    Sketcher.Constraint("Horizontal", 21, 2, 24, 2),
    Sketcher.Constraint("Horizontal", 19, 2, 26, 2),
    Sketcher.Constraint("Horizontal", 27, 2, 30, 2),
    Sketcher.Constraint("Vertical", 7, 2, 10, 2),
    Sketcher.Constraint("Vertical", 5, 2, 12, 2),
    Sketcher.Constraint("Vertical", 3, 2, 14, 2),
    Sketcher.Constraint("Vertical", 1, 2, 16, 2),
    Sketcher.Constraint("Vertical", 15, 2, 21, 2),
    Sketcher.Constraint("Vertical", 13, 2, 23, 2),
    Sketcher.Constraint("Vertical", 24, 2, 27, 2),
    Sketcher.Constraint("Vertical", 22, 2, 29, 2),
    Sketcher.Constraint("Equal", 2, 6),
    Sketcher.Constraint("Equal", 0, 8),
    Sketcher.Constraint("Equal", 16, 1),
    Sketcher.Constraint("Equal", 18, 3),
    Sketcher.Constraint("Equal", 7, 11),
    Sketcher.Constraint("Equal", 5, 13),
    Sketcher.Constraint("Equal", 31, 22),
    Sketcher.Constraint("Equal", 24, 28),
    Sketcher.Constraint("DistanceX", 0, 1, 0, 2, Q("2 mm")),
    Sketcher.Constraint("DistanceY", 9, 2, 9, 1, Q("174.8 mm")),
    Sketcher.Constraint("DistanceX", 20, 2, 18, 2, Q("2 mm")),
    Sketcher.Constraint("DistanceX", 6, 2, 1, 2, Q("118.2 mm")),
    Sketcher.Constraint("DistanceX", 9, 2, 25, 2, Q("2.5 mm")),
    Sketcher.Constraint("DistanceX", 2, 2, 2, 1, Q("16.2 mm")),
    Sketcher.Constraint("DistanceY", -1, 1, 0, 2, Q("102.255 mm")),
    Sketcher.Constraint("DistanceX", -1, 1, 0, 2, Q("30.1703 mm")),
])
pocket1 = doc.addObject("PartDesign::Pocket", "Pocket")
body.addObject(pocket1)
pocket1.Profile = sketch4
pocket1.Length = 5

# Sketch on XY plane
sketch5 = doc.addObject("Sketcher::SketchObject", "Sketch004")
body.addObject(sketch5)
sketch5.AttachmentSupport = (doc.XY_Plane, [""])
sketch5.MapMode = "FlatFace"
sketch5.AttachmentOffset = App.Placement(Vector(0, 0, 120.4549), App.Rotation())
sketch5.addGeometry([
    Part.LineSegment(Vector(-90, 5.8, 0), Vector(-90, 4.2, 0)),  # 0
    Part.LineSegment(Vector(-90, 4.2, 0), Vector(-59.4, 4.2, 0)),  # 1
    Part.LineSegment(Vector(-59.4, 4.2, 0), Vector(-59.4, 10.4, 0)),  # 2
    Part.ArcOfCircle(Part.Circle(Vector(-68.4, 10.4, 0), Vector(0, 0, 1), 9), math.radians(0), math.radians(180)),  # 3
    Part.LineSegment(Vector(-77.4, 10.4, 0), Vector(-90, 5.8, 0)),  # 4
    Part.Circle(Vector(-68.4, 10.4, 0), Vector(0, 0, 1), 3.5),  # 5
    Part.LineSegment(Vector(1.5, 10.4, 0), Vector(1.5, 4.2, 0)),  # 6
    Part.LineSegment(Vector(1.5, 4.2, 0), Vector(32.2, 4.2, 0)),  # 7
    Part.LineSegment(Vector(32.2, 4.2, 0), Vector(32.2, 5.8, 0)),  # 8
    Part.LineSegment(Vector(32.2, 5.8, 0), Vector(19.5, 10.4, 0)),  # 9
    Part.ArcOfCircle(Part.Circle(Vector(10.5, 10.4, 0), Vector(0, 0, 1), 9), math.radians(0), math.radians(180)),  # 10
    Part.Circle(Vector(10.5, 10.4, 0), Vector(0, 0, 1), 3.5),  # 11
], False)
sketch5.addConstraint([
    Sketcher.Constraint("Coincident", 0, 2, 1, 1),
    Sketcher.Constraint("Coincident", 1, 2, 2, 1),
    Sketcher.Constraint("Tangent", 2, 2, 3, 1),
    Sketcher.Constraint("Coincident", 3, 2, 4, 1),
    Sketcher.Constraint("Coincident", 4, 2, 0, 1),
    Sketcher.Constraint("Coincident", 6, 2, 7, 1),
    Sketcher.Constraint("Coincident", 7, 2, 8, 1),
    Sketcher.Constraint("Coincident", 8, 2, 9, 1),
    Sketcher.Constraint("Coincident", 9, 2, 10, 1),
    Sketcher.Constraint("Tangent", 10, 2, 6, 1),
    Sketcher.Constraint("Vertical", 0),
    Sketcher.Constraint("Horizontal", 1),
    Sketcher.Constraint("Vertical", 2),
    Sketcher.Constraint("Vertical", 6),
    Sketcher.Constraint("Horizontal", 7),
    Sketcher.Constraint("Vertical", 8),
    Sketcher.Constraint("Coincident", 5, 3, 3, 3),
    Sketcher.Constraint("Coincident", 11, 3, 10, 3),
    Sketcher.Constraint("Equal", 3, 10),
    Sketcher.Constraint("Equal", 5, 11),
    Sketcher.Constraint("Horizontal", 5, 3, 10, 3),
    Sketcher.Constraint("Horizontal", 2, 2, 3, 2),
    Sketcher.Constraint("Horizontal", 1, 2, 6, 2),
    Sketcher.Constraint("Horizontal", 4, 2, 8, 2),
    Sketcher.Constraint("Horizontal", 3, 2, 9, 2),
    Sketcher.Constraint("Equal", 1, 7),
    Sketcher.Constraint("Diameter", 5, Q("7 mm")),
    Sketcher.Constraint("Radius", 3, Q("9 mm")),
    Sketcher.Constraint("DistanceY", 0, 2, 0, 1, Q("1.5 mm")),
    Sketcher.Constraint("DistanceY", -1, 1, 0, 2, Q("4.25 mm")),
    Sketcher.Constraint("DistanceX", 1, 1, 1, 2, Q("30.6205 mm")),
    Sketcher.Constraint("DistanceY", 2, 1, 2, 2, Q("6.1756 mm")),
    Sketcher.Constraint("DistanceX", 3, 3, 10, 3, Q("78.959 mm")),
    Sketcher.Constraint("DistanceX", 3, 3, -1, 1, Q("68.4092 mm")),
])
pad4 = doc.addObject("PartDesign::Pad", "Pad003")
body.addObject(pad4)
pad4.Profile = sketch5
pad4.Length = 9
pad4.Reversed = True

# Sketch on XY plane
sketch6 = doc.addObject("Sketcher::SketchObject", "Sketch005")
body.addObject(sketch6)
sketch6.AttachmentSupport = (doc.XY_Plane, [""])
sketch6.MapMode = "FlatFace"
sketch6.AttachmentOffset = App.Placement(Vector(0, 0, -90.7451), App.Rotation())
sketch6.addGeometry([
    Part.LineSegment(Vector(32.2, 5.8, 0), Vector(32.2, 4.2, 0)),  # 0
    Part.LineSegment(Vector(32.2, 4.2, 0), Vector(1.5, 4.2, 0)),  # 1
    Part.LineSegment(Vector(1.5, 4.2, 0), Vector(1.5, 10.4, 0)),  # 2
    Part.ArcOfCircle(Part.Circle(Vector(10.5, 10.4, 0), Vector(0, 0, 1), 9), math.radians(0), math.radians(180)),  # 3
    Part.LineSegment(Vector(19.5, 10.4, 0), Vector(32.2, 5.8, 0)),  # 4
    Part.Circle(Vector(10.5, 10.4, 0), Vector(0, 0, 1), 3.5),  # 5
    Part.LineSegment(Vector(-59.4, 10.4, 0), Vector(-59.4, 4.2, 0)),  # 6
    Part.LineSegment(Vector(-59.4, 4.2, 0), Vector(-90, 4.2, 0)),  # 7
    Part.LineSegment(Vector(-90, 4.2, 0), Vector(-90, 5.8, 0)),  # 8
    Part.LineSegment(Vector(-90, 5.8, 0), Vector(-77.4, 10.4, 0)),  # 9
    Part.ArcOfCircle(Part.Circle(Vector(-68.4, 10.4, 0), Vector(0, 0, 1), 9), math.radians(0), math.radians(180)),  # 10
    Part.Circle(Vector(-68.4, 10.4, 0), Vector(0, 0, 1), 3.5),  # 11
], False)
sketch6.addConstraint([
    Sketcher.Constraint("Coincident", 0, 2, 1, 1),
    Sketcher.Constraint("Coincident", 1, 2, 2, 1),
    Sketcher.Constraint("Tangent", 2, 2, 3, 2),
    Sketcher.Constraint("Coincident", 3, 1, 4, 1),
    Sketcher.Constraint("Coincident", 4, 2, 0, 1),
    Sketcher.Constraint("Coincident", 6, 2, 7, 1),
    Sketcher.Constraint("Coincident", 7, 2, 8, 1),
    Sketcher.Constraint("Coincident", 8, 2, 9, 1),
    Sketcher.Constraint("Coincident", 9, 2, 10, 2),
    Sketcher.Constraint("Tangent", 10, 1, 6, 1),
    Sketcher.Constraint("Vertical", 0),
    Sketcher.Constraint("Horizontal", 1),
    Sketcher.Constraint("Vertical", 2),
    Sketcher.Constraint("Vertical", 6),
    Sketcher.Constraint("Horizontal", 7),
    Sketcher.Constraint("Vertical", 8),
    Sketcher.Constraint("Coincident", 5, 3, 3, 3),
    Sketcher.Constraint("Coincident", 11, 3, 10, 3),
    Sketcher.Constraint("Equal", 3, 10),
    Sketcher.Constraint("Equal", 5, 11),
    Sketcher.Constraint("Horizontal", 5, 3, 10, 3),
    Sketcher.Constraint("Horizontal", 2, 2, 3, 1),
    Sketcher.Constraint("Horizontal", 1, 2, 6, 2),
    Sketcher.Constraint("Horizontal", 4, 2, 8, 2),
    Sketcher.Constraint("Horizontal", 3, 1, 9, 2),
    Sketcher.Constraint("Equal", 1, 7),
    Sketcher.Constraint("Diameter", 5, Q("7 mm")),
    Sketcher.Constraint("Radius", 3, Q("9 mm")),
    Sketcher.Constraint("DistanceY", 0, 2, 0, 1, Q("1.5 mm")),
    Sketcher.Constraint("DistanceY", -1, 1, 0, 2, Q("4.25 mm")),
    Sketcher.Constraint("DistanceX", 1, 2, 1, 1, Q("30.6205 mm")),
    Sketcher.Constraint("DistanceY", 2, 1, 2, 2, Q("6.1756 mm")),
    Sketcher.Constraint("DistanceX", 10, 3, 3, 3, Q("78.959 mm")),
    Sketcher.Constraint("DistanceX", -1, 1, 3, 3, Q("10.5498 mm")),
])
pad5 = doc.addObject("PartDesign::Pad", "Pad004")
body.addObject(pad5)
pad5.Profile = sketch6
pad5.Length = 9

doc.recompute()
